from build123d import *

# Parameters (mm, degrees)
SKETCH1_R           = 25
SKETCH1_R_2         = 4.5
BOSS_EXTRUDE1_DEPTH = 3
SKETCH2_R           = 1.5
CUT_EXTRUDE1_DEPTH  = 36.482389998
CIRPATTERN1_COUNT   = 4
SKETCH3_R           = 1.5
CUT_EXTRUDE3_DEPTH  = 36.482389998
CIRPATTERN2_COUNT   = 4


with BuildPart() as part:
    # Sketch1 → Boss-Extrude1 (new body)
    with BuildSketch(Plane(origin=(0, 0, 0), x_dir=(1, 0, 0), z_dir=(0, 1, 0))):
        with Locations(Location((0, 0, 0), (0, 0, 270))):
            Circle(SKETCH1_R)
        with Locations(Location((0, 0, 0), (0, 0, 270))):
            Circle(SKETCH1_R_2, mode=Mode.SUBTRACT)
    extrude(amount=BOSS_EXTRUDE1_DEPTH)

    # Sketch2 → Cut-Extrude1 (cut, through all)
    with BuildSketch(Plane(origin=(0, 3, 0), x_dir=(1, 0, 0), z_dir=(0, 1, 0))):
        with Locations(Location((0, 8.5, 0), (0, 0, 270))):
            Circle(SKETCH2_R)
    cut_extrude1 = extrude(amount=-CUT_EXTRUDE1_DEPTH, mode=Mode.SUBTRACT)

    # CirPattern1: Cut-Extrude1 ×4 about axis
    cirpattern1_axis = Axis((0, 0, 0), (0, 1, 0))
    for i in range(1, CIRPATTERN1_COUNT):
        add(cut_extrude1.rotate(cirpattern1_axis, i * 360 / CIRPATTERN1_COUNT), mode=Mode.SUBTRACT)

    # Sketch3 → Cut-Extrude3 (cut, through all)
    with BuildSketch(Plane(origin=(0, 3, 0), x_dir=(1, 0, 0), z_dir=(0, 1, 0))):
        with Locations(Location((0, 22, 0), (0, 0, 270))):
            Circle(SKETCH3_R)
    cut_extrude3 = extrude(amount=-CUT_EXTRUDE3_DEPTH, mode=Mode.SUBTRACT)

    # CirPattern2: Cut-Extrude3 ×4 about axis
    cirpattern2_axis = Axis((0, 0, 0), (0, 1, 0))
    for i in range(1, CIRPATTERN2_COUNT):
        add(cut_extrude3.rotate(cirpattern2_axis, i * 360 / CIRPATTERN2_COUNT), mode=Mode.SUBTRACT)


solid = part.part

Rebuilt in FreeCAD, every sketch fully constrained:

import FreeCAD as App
import Part
import Sketcher

doc = App.newDocument("Part")
body = doc.addObject("PartDesign::Body", "Body")

sketch1 = doc.addObject("Sketcher::SketchObject", "Sketch")
body.addObject(sketch1)
sketch1.AttachmentSupport = (doc.XZ_Plane, [""])
sketch1.MapMode = "FlatFace"
sketch1.addGeometry([
    Part.Circle(App.Vector(0, 0, 0), App.Vector(0, 0, 1), 25),
    Part.Circle(App.Vector(0, 0, 0), App.Vector(0, 0, 1), 4.5),
], False)
sketch1.addConstraint([
    Sketcher.Constraint("Coincident", 0, 3, -1, 1),
    Sketcher.Constraint("Coincident", 1, 3, -1, 1),
    Sketcher.Constraint("Diameter", 0, 50.0),
    Sketcher.Constraint("Diameter", 1, 9.0),
])
pad1 = doc.addObject("PartDesign::Pad", "Pad")
body.addObject(pad1)
pad1.Profile = sketch1
pad1.Length = 3
pad1.Reversed = True

sketch2 = doc.addObject("Sketcher::SketchObject", "Sketch001")
body.addObject(sketch2)
sketch2.AttachmentSupport = (doc.XZ_Plane, [""])
sketch2.MapMode = "FlatFace"
sketch2.AttachmentOffset = App.Placement(App.Vector(0, 0, -3), App.Rotation())
sketch2.addGeometry(Part.Circle(App.Vector(0, -8.5, 0), App.Vector(0, 0, 1), 1.5), False)
sketch2.addConstraint([
    Sketcher.Constraint("PointOnObject", 0, 3, -2),
    Sketcher.Constraint("Diameter", 0, 3.0),
    Sketcher.Constraint("DistanceY", 0, 3, -1, 1, 8.5),
])
pocket1 = doc.addObject("PartDesign::Pocket", "Pocket")
body.addObject(pocket1)
pocket1.Profile = sketch2
pocket1.Type = "ThroughAll"
pocket1.Reversed = True
doc.recompute()

polarpattern = doc.addObject("PartDesign::PolarPattern", "PolarPattern")
body.addObject(polarpattern)
polarpattern.Originals = [pocket1]
polarpattern.Axis = (doc.Y_Axis, [""])
polarpattern.Angle = 360
polarpattern.Occurrences = 4
body.Tip = polarpattern

sketch3 = doc.addObject("Sketcher::SketchObject", "Sketch002")
body.addObject(sketch3)
sketch3.AttachmentSupport = (doc.XZ_Plane, [""])
sketch3.MapMode = "FlatFace"
sketch3.AttachmentOffset = App.Placement(App.Vector(0, 0, -3), App.Rotation())
sketch3.addGeometry(Part.Circle(App.Vector(0, -22, 0), App.Vector(0, 0, 1), 1.5), False)
sketch3.addConstraint([
    Sketcher.Constraint("PointOnObject", 0, 3, -2),
    Sketcher.Constraint("Diameter", 0, 3.0),
    Sketcher.Constraint("DistanceY", 0, 3, -1, 1, 22.0),
])
pocket2 = doc.addObject("PartDesign::Pocket", "Pocket001")
body.addObject(pocket2)
pocket2.Profile = sketch3
pocket2.Type = "ThroughAll"
pocket2.Reversed = True
doc.recompute()

polarpattern2 = doc.addObject("PartDesign::PolarPattern", "PolarPattern001")
body.addObject(polarpattern2)
polarpattern2.Originals = [pocket2]
polarpattern2.Axis = (doc.Y_Axis, [""])
polarpattern2.Angle = 360
polarpattern2.Occurrences = 4
body.Tip = polarpattern2

doc.recompute()
